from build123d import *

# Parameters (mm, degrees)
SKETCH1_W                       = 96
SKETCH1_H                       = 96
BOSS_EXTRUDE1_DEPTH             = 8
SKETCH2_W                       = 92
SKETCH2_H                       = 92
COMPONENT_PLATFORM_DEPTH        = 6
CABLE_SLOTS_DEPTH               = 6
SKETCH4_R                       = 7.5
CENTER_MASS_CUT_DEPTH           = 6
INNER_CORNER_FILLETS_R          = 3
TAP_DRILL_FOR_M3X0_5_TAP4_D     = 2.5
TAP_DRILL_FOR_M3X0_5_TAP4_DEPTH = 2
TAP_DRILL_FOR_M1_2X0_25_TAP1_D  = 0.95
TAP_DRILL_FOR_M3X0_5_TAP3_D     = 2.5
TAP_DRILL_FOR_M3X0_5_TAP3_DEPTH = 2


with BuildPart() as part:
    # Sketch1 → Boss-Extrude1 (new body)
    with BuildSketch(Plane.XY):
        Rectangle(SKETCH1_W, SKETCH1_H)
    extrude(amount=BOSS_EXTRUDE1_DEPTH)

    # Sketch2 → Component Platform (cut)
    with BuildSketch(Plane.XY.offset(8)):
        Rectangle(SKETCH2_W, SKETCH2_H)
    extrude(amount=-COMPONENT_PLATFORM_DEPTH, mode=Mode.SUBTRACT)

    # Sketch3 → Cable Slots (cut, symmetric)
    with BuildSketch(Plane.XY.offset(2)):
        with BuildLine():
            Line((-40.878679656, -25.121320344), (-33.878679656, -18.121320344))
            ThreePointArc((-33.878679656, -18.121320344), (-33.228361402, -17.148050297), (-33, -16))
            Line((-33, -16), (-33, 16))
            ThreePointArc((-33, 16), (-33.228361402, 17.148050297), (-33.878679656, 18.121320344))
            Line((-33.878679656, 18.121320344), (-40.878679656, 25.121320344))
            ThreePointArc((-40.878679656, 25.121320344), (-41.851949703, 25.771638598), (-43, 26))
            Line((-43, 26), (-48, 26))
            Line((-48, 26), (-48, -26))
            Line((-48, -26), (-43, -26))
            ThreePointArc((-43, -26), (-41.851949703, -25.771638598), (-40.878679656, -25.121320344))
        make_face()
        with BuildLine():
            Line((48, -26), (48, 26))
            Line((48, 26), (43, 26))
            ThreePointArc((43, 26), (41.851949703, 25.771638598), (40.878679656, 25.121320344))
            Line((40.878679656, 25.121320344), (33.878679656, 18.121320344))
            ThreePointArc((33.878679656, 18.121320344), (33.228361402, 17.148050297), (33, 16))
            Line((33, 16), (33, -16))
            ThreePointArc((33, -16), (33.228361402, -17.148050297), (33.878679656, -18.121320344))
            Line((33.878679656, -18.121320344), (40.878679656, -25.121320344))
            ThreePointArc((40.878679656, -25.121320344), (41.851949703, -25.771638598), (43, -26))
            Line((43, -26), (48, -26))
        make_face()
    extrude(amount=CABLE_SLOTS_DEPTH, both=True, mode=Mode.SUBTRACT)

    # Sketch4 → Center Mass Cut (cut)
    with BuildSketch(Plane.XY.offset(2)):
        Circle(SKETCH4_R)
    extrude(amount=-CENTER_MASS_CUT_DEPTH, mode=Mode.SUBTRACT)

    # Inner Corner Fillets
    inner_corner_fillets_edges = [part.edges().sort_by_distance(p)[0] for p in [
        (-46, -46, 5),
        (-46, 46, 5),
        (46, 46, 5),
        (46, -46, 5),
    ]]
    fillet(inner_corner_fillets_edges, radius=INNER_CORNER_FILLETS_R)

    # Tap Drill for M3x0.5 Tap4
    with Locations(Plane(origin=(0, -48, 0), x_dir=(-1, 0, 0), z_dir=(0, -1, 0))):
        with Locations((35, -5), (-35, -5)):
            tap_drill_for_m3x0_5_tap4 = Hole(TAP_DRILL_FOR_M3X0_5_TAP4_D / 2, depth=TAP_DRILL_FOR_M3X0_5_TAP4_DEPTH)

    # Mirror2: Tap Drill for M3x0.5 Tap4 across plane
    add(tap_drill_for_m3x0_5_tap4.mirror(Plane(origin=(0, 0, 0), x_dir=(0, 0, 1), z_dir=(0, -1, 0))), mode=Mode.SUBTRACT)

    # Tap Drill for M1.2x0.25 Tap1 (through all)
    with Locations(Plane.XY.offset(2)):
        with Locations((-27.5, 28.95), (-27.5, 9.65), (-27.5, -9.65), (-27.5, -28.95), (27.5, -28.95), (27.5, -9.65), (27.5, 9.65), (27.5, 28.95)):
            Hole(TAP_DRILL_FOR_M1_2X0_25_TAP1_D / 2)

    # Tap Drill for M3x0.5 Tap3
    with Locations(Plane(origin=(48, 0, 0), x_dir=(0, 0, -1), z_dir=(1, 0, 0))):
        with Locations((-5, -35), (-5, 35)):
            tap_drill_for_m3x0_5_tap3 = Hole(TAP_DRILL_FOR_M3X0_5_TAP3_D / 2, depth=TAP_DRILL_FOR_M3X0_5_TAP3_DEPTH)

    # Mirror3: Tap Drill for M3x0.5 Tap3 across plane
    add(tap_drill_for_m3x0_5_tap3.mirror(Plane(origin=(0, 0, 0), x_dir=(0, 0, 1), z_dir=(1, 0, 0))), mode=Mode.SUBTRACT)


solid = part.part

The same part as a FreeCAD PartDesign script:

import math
import FreeCAD as App
import Part
import Sketcher
Q = App.Units.Quantity


def edges_at(feature, points):
    """Names of the edges that pass closest to the given points."""
    edges = feature.Shape.Edges
    near = lambda p: min(range(len(edges)), key=lambda i: edges[i].distToShape(Part.Vertex(*p))[0])
    return sorted({f"Edge{near(p) + 1}" for p in points})


def add_polygon(sketch, points):
    """Adds a closed chain of lines whose ends are joined by coincident constraints."""
    first, n = sketch.GeometryCount, len(points)
    for a, b in zip(points, points[1:] + points[:1]):
        sketch.addGeometry(Part.LineSegment(App.Vector(*a, 0), App.Vector(*b, 0)), False)
    for i in range(n):
        sketch.addConstraint(Sketcher.Constraint("Coincident", first + i, 2, first + (i + 1) % n, 1))

doc = App.newDocument("Part")
body = doc.addObject("PartDesign::Body", "Body")

sketch1 = doc.addObject("Sketcher::SketchObject", "Sketch")
body.addObject(sketch1)
sketch1.AttachmentSupport = (doc.XY_Plane, [""])
sketch1.MapMode = "FlatFace"
add_polygon(sketch1, [(-48, 48), (-48, -48), (48, -48), (48, 48)])
sketch1.addConstraint(Sketcher.Constraint("Vertical", 0))
sketch1.addConstraint(Sketcher.Constraint("Horizontal", 1))
sketch1.addConstraint(Sketcher.Constraint("Vertical", 2))
sketch1.addConstraint(Sketcher.Constraint("Horizontal", 3))
sketch1.addConstraint(Sketcher.Constraint("Symmetric", 0, 2, 2, 2, -1, 1))
sketch1.addConstraint(Sketcher.Constraint("Equal", 3, 0))
sketch1.addConstraint(Sketcher.Constraint("DistanceX", 1, 1, 1, 2, Q("96 mm")))
pad1 = doc.addObject("PartDesign::Pad", "Pad")
body.addObject(pad1)
pad1.Profile = sketch1
pad1.Length = 8

sketch2 = doc.addObject("Sketcher::SketchObject", "Sketch001")
body.addObject(sketch2)
sketch2.AttachmentSupport = (doc.XY_Plane, [""])
sketch2.MapMode = "FlatFace"
sketch2.AttachmentOffset = App.Placement(App.Vector(0, 0, 8), App.Rotation())
add_polygon(sketch2, [(-46, 46), (-46, -46), (46, -46), (46, 46)])
sketch2.addConstraint(Sketcher.Constraint("Vertical", 0))
sketch2.addConstraint(Sketcher.Constraint("Horizontal", 1))
sketch2.addConstraint(Sketcher.Constraint("Vertical", 2))
sketch2.addConstraint(Sketcher.Constraint("Horizontal", 3))
sketch2.addConstraint(Sketcher.Constraint("Symmetric", 0, 2, 2, 2, -1, 1))
sketch2.addConstraint(Sketcher.Constraint("Equal", 3, 0))
sketch2.addConstraint(Sketcher.Constraint("DistanceX", 1, 1, 1, 2, Q("92 mm")))
pocket1 = doc.addObject("PartDesign::Pocket", "Pocket")
body.addObject(pocket1)
pocket1.Profile = sketch2
pocket1.Length = 6

sketch3 = doc.addObject("Sketcher::SketchObject", "Sketch002")
body.addObject(sketch3)
sketch3.AttachmentSupport = (doc.XY_Plane, [""])
sketch3.MapMode = "FlatFace"
sketch3.AttachmentOffset = App.Placement(App.Vector(0, 0, 2), App.Rotation())
sketch3.addGeometry(Part.LineSegment(App.Vector(-40.9, -25.1, 0), App.Vector(-33.9, -18.1, 0)), False)
sketch3.addGeometry(Part.ArcOfCircle(Part.Circle(App.Vector(-36, -16, 0), App.Vector(0, 0, 1), 3), math.radians(-45), math.radians(0)), False)
sketch3.addGeometry(Part.LineSegment(App.Vector(-33, -16, 0), App.Vector(-33, 16, 0)), False)
sketch3.addGeometry(Part.ArcOfCircle(Part.Circle(App.Vector(-36, 16, 0), App.Vector(0, 0, 1), 3), math.radians(0), math.radians(45)), False)
sketch3.addGeometry(Part.LineSegment(App.Vector(-33.9, 18.1, 0), App.Vector(-40.9, 25.1, 0)), False)
sketch3.addGeometry(Part.ArcOfCircle(Part.Circle(App.Vector(-43, 23, 0), App.Vector(0, 0, 1), 3), math.radians(45), math.radians(90)), False)
sketch3.addGeometry(Part.LineSegment(App.Vector(-43, 26, 0), App.Vector(-48, 26, 0)), False)
sketch3.addGeometry(Part.LineSegment(App.Vector(-48, 26, 0), App.Vector(-48, -26, 0)), False)
sketch3.addGeometry(Part.LineSegment(App.Vector(-48, -26, 0), App.Vector(-43, -26, 0)), False)
sketch3.addGeometry(Part.ArcOfCircle(Part.Circle(App.Vector(-43, -23, 0), App.Vector(0, 0, 1), 3), math.radians(-90), math.radians(-45)), False)
sketch3.addGeometry(Part.LineSegment(App.Vector(48, -26, 0), App.Vector(48, 26, 0)), False)
sketch3.addGeometry(Part.LineSegment(App.Vector(48, 26, 0), App.Vector(43, 26, 0)), False)
sketch3.addGeometry(Part.ArcOfCircle(Part.Circle(App.Vector(43, 23, 0), App.Vector(0, 0, 1), 3), math.radians(90), math.radians(135)), False)
sketch3.addGeometry(Part.LineSegment(App.Vector(40.9, 25.1, 0), App.Vector(33.9, 18.1, 0)), False)
sketch3.addGeometry(Part.ArcOfCircle(Part.Circle(App.Vector(36, 16, 0), App.Vector(0, 0, 1), 3), math.radians(135), math.radians(180)), False)
sketch3.addGeometry(Part.LineSegment(App.Vector(33, 16, 0), App.Vector(33, -16, 0)), False)
sketch3.addGeometry(Part.ArcOfCircle(Part.Circle(App.Vector(36, -16, 0), App.Vector(0, 0, 1), 3), math.radians(180), math.radians(225)), False)
sketch3.addGeometry(Part.LineSegment(App.Vector(33.9, -18.1, 0), App.Vector(40.9, -25.1, 0)), False)
sketch3.addGeometry(Part.ArcOfCircle(Part.Circle(App.Vector(43, -23, 0), App.Vector(0, 0, 1), 3), math.radians(-135), math.radians(-90)), False)
sketch3.addGeometry(Part.LineSegment(App.Vector(43, -26, 0), App.Vector(48, -26, 0)), False)
sketch3.addConstraint(Sketcher.Constraint("Tangent", 0, 2, 1, 1))
sketch3.addConstraint(Sketcher.Constraint("Tangent", 1, 2, 2, 1))
sketch3.addConstraint(Sketcher.Constraint("Tangent", 2, 2, 3, 1))
sketch3.addConstraint(Sketcher.Constraint("Tangent", 3, 2, 4, 1))
sketch3.addConstraint(Sketcher.Constraint("Tangent", 4, 2, 5, 1))
sketch3.addConstraint(Sketcher.Constraint("Tangent", 5, 2, 6, 1))
sketch3.addConstraint(Sketcher.Constraint("Coincident", 6, 2, 7, 1))
sketch3.addConstraint(Sketcher.Constraint("Coincident", 7, 2, 8, 1))
sketch3.addConstraint(Sketcher.Constraint("Tangent", 8, 2, 9, 1))
sketch3.addConstraint(Sketcher.Constraint("Tangent", 9, 2, 0, 1))
sketch3.addConstraint(Sketcher.Constraint("Coincident", 10, 2, 11, 1))
sketch3.addConstraint(Sketcher.Constraint("Tangent", 11, 2, 12, 1))
sketch3.addConstraint(Sketcher.Constraint("Tangent", 12, 2, 13, 1))
sketch3.addConstraint(Sketcher.Constraint("Tangent", 13, 2, 14, 1))
sketch3.addConstraint(Sketcher.Constraint("Tangent", 14, 2, 15, 1))
sketch3.addConstraint(Sketcher.Constraint("Tangent", 15, 2, 16, 1))
sketch3.addConstraint(Sketcher.Constraint("Tangent", 16, 2, 17, 1))
sketch3.addConstraint(Sketcher.Constraint("Tangent", 17, 2, 18, 1))
sketch3.addConstraint(Sketcher.Constraint("Tangent", 18, 2, 19, 1))
sketch3.addConstraint(Sketcher.Constraint("Coincident", 19, 2, 10, 1))
sketch3.addConstraint(Sketcher.Constraint("Vertical", 2))
sketch3.addConstraint(Sketcher.Constraint("Horizontal", 6))
sketch3.addConstraint(Sketcher.Constraint("Vertical", 7))
sketch3.addConstraint(Sketcher.Constraint("Horizontal", 8))
sketch3.addConstraint(Sketcher.Constraint("Vertical", 10))
sketch3.addConstraint(Sketcher.Constraint("Horizontal", 11))
sketch3.addConstraint(Sketcher.Constraint("Vertical", 15))
sketch3.addConstraint(Sketcher.Constraint("Horizontal", 19))
sketch3.addConstraint(Sketcher.Constraint("Equal", 1, 3))
sketch3.addConstraint(Sketcher.Constraint("Equal", 3, 5))
sketch3.addConstraint(Sketcher.Constraint("Equal", 5, 9))
sketch3.addConstraint(Sketcher.Constraint("Equal", 9, 12))
sketch3.addConstraint(Sketcher.Constraint("Equal", 12, 14))
sketch3.addConstraint(Sketcher.Constraint("Equal", 14, 16))
sketch3.addConstraint(Sketcher.Constraint("Equal", 16, 18))
sketch3.addConstraint(Sketcher.Constraint("Symmetric", 9, 3, 12, 3, -1, 1))
sketch3.addConstraint(Sketcher.Constraint("Symmetric", 1, 3, 14, 3, -1, 1))
sketch3.addConstraint(Sketcher.Constraint("Symmetric", 5, 3, 18, 3, -1, 1))
sketch3.addConstraint(Sketcher.Constraint("Symmetric", 5, 3, 12, 3, -2))
sketch3.addConstraint(Sketcher.Constraint("Perpendicular", 0, 4))
sketch3.addConstraint(Sketcher.Constraint("Perpendicular", 13, 17))
sketch3.addConstraint(Sketcher.Constraint("Horizontal", 3, 3, 14, 3))
sketch3.addConstraint(Sketcher.Constraint("Equal", 8, 11))
sketch3.addConstraint(Sketcher.Constraint("Radius", 1, Q("3 mm")))
sketch3.addConstraint(Sketcher.Constraint("DistanceX", 6, 2, 6, 1, Q("5 mm")))
sketch3.addConstraint(Sketcher.Constraint("DistanceY", 2, 1, 2, 2, Q("32 mm")))
sketch3.addConstraint(Sketcher.Constraint("DistanceY", 7, 2, 7, 1, Q("52 mm")))
sketch3.addConstraint(Sketcher.Constraint("DistanceX", 1, 3, -1, 1, Q("36 mm")))
pocket2 = doc.addObject("PartDesign::Pocket", "Pocket001")
body.addObject(pocket2)
pocket2.Profile = sketch3
pocket2.Length = 12
pocket2.Midplane = True

sketch4 = doc.addObject("Sketcher::SketchObject", "Sketch003")
body.addObject(sketch4)
sketch4.AttachmentSupport = (doc.XY_Plane, [""])
sketch4.MapMode = "FlatFace"
sketch4.AttachmentOffset = App.Placement(App.Vector(0, 0, 2), App.Rotation())
sketch4.addGeometry(Part.Circle(App.Vector(0, 0, 0), App.Vector(0, 0, 1), 8), False)
sketch4.addConstraint(Sketcher.Constraint("Coincident", 0, 3, -1, 1))
sketch4.addConstraint(Sketcher.Constraint("Diameter", 0, Q("15 mm")))
pocket3 = doc.addObject("PartDesign::Pocket", "Pocket002")
body.addObject(pocket3)
pocket3.Profile = sketch4
pocket3.Length = 6
doc.recompute()

fillet = doc.addObject("PartDesign::Fillet", "Fillet")
body.addObject(fillet)
fillet.Base = (pocket3, edges_at(pocket3, [
    (-46, -46, 5),
    (-46, 46, 5),
    (46, 46, 5),
    (46, -46, 5),
]))
fillet.Radius = 3

sketch5 = doc.addObject("Sketcher::SketchObject", "Sketch004")
body.addObject(sketch5)
sketch5.AttachmentSupport = (doc.XZ_Plane, [""])
sketch5.MapMode = "FlatFace"
sketch5.AttachmentOffset = App.Placement(App.Vector(0, 0, 48), App.Rotation())
sketch5.addGeometry(Part.Circle(App.Vector(-35, 5, 0), App.Vector(0, 0, 1), 1.2), False)
sketch5.addGeometry(Part.Circle(App.Vector(35, 5, 0), App.Vector(0, 0, 1), 1.2), False)
sketch5.addConstraint(Sketcher.Constraint("Equal", 0, 1))
sketch5.addConstraint(Sketcher.Constraint("Symmetric", 0, 3, 1, 3, -2))
sketch5.addConstraint(Sketcher.Constraint("Diameter", 0, Q("2.5 mm")))
sketch5.addConstraint(Sketcher.Constraint("DistanceX", 0, 3, -1, 1, Q("35 mm")))
sketch5.addConstraint(Sketcher.Constraint("DistanceY", -1, 1, 0, 3, Q("5 mm")))
doc.recompute()
hole = doc.addObject("PartDesign::Hole", "Hole")
body.addObject(hole)
hole.Profile = sketch5
hole.ThreadType = "None"
hole.Diameter = 2.5
hole.DepthType = "Dimension"
hole.Depth = 2
hole.DrillPoint = "Flat"
doc.recompute()

mirrored = doc.addObject("PartDesign::Mirrored", "Mirrored")
body.addObject(mirrored)
mirrored.Originals = [hole]
mirrored.MirrorPlane = (doc.XZ_Plane, [""])
body.Tip = mirrored

sketch6 = doc.addObject("Sketcher::SketchObject", "Sketch005")
body.addObject(sketch6)
sketch6.AttachmentSupport = (doc.XY_Plane, [""])
sketch6.MapMode = "FlatFace"
sketch6.AttachmentOffset = App.Placement(App.Vector(0, 0, 2), App.Rotation())
sketch6.addGeometry(Part.Circle(App.Vector(-27.5, 28.95, 0), App.Vector(0, 0, 1), 0.47), False)
sketch6.addGeometry(Part.Circle(App.Vector(-27.5, 9.65, 0), App.Vector(0, 0, 1), 0.47), False)
sketch6.addGeometry(Part.Circle(App.Vector(-27.5, -9.65, 0), App.Vector(0, 0, 1), 0.47), False)
sketch6.addGeometry(Part.Circle(App.Vector(-27.5, -28.95, 0), App.Vector(0, 0, 1), 0.47), False)
sketch6.addGeometry(Part.Circle(App.Vector(27.5, -28.95, 0), App.Vector(0, 0, 1), 0.47), False)
sketch6.addGeometry(Part.Circle(App.Vector(27.5, -9.65, 0), App.Vector(0, 0, 1), 0.47), False)
sketch6.addGeometry(Part.Circle(App.Vector(27.5, 9.65, 0), App.Vector(0, 0, 1), 0.47), False)
sketch6.addGeometry(Part.Circle(App.Vector(27.5, 28.95, 0), App.Vector(0, 0, 1), 0.47), False)
sketch6.addConstraint(Sketcher.Constraint("Equal", 0, 1))
sketch6.addConstraint(Sketcher.Constraint("Equal", 1, 2))
sketch6.addConstraint(Sketcher.Constraint("Equal", 2, 3))
sketch6.addConstraint(Sketcher.Constraint("Equal", 3, 4))
sketch6.addConstraint(Sketcher.Constraint("Equal", 4, 5))
sketch6.addConstraint(Sketcher.Constraint("Equal", 5, 6))
sketch6.addConstraint(Sketcher.Constraint("Equal", 6, 7))
sketch6.addConstraint(Sketcher.Constraint("Symmetric", 0, 3, 4, 3, -1, 1))
sketch6.addConstraint(Sketcher.Constraint("Symmetric", 1, 3, 5, 3, -1, 1))
sketch6.addConstraint(Sketcher.Constraint("Symmetric", 2, 3, 6, 3, -1, 1))
sketch6.addConstraint(Sketcher.Constraint("Symmetric", 3, 3, 7, 3, -1, 1))
sketch6.addConstraint(Sketcher.Constraint("Symmetric", 3, 3, 4, 3, -2))
sketch6.addConstraint(Sketcher.Constraint("Symmetric", 2, 3, 5, 3, -2))
sketch6.addConstraint(Sketcher.Constraint("Vertical", 0, 3, 1, 3))
sketch6.addConstraint(Sketcher.Constraint("Diameter", 0, Q("0.95 mm")))
sketch6.addConstraint(Sketcher.Constraint("DistanceX", 3, 3, 4, 3, Q("55 mm")))
sketch6.addConstraint(Sketcher.Constraint("DistanceY", 1, 3, 0, 3, Q("19.3 mm")))
sketch6.addConstraint(Sketcher.Constraint("DistanceY", 2, 3, 1, 3, Q("19.3 mm")))
doc.recompute()
hole2 = doc.addObject("PartDesign::Hole", "Hole001")
body.addObject(hole2)
hole2.Profile = sketch6
hole2.ThreadType = "None"
hole2.Diameter = 0.95
hole2.DepthType = "ThroughAll"

sketch7 = doc.addObject("Sketcher::SketchObject", "Sketch006")
body.addObject(sketch7)
sketch7.AttachmentSupport = (doc.YZ_Plane, [""])
sketch7.MapMode = "FlatFace"
sketch7.AttachmentOffset = App.Placement(App.Vector(0, 0, 48), App.Rotation())
sketch7.addGeometry(Part.Circle(App.Vector(-35, 5, 0), App.Vector(0, 0, 1), 1.2), False)
sketch7.addGeometry(Part.Circle(App.Vector(35, 5, 0), App.Vector(0, 0, 1), 1.2), False)
sketch7.addConstraint(Sketcher.Constraint("Equal", 0, 1))
sketch7.addConstraint(Sketcher.Constraint("Symmetric", 0, 3, 1, 3, -2))
sketch7.addConstraint(Sketcher.Constraint("Diameter", 0, Q("2.5 mm")))
sketch7.addConstraint(Sketcher.Constraint("DistanceX", 0, 3, -1, 1, Q("35 mm")))
sketch7.addConstraint(Sketcher.Constraint("DistanceY", -1, 1, 0, 3, Q("5 mm")))
doc.recompute()
hole3 = doc.addObject("PartDesign::Hole", "Hole002")
body.addObject(hole3)
hole3.Profile = sketch7
hole3.ThreadType = "None"
hole3.Diameter = 2.5
hole3.DepthType = "Dimension"
hole3.Depth = 2
hole3.DrillPoint = "Flat"
doc.recompute()

mirrored2 = doc.addObject("PartDesign::Mirrored", "Mirrored001")
body.addObject(mirrored2)
mirrored2.Originals = [hole3]
mirrored2.MirrorPlane = (doc.YZ_Plane, [""])
body.Tip = mirrored2

doc.recompute()
